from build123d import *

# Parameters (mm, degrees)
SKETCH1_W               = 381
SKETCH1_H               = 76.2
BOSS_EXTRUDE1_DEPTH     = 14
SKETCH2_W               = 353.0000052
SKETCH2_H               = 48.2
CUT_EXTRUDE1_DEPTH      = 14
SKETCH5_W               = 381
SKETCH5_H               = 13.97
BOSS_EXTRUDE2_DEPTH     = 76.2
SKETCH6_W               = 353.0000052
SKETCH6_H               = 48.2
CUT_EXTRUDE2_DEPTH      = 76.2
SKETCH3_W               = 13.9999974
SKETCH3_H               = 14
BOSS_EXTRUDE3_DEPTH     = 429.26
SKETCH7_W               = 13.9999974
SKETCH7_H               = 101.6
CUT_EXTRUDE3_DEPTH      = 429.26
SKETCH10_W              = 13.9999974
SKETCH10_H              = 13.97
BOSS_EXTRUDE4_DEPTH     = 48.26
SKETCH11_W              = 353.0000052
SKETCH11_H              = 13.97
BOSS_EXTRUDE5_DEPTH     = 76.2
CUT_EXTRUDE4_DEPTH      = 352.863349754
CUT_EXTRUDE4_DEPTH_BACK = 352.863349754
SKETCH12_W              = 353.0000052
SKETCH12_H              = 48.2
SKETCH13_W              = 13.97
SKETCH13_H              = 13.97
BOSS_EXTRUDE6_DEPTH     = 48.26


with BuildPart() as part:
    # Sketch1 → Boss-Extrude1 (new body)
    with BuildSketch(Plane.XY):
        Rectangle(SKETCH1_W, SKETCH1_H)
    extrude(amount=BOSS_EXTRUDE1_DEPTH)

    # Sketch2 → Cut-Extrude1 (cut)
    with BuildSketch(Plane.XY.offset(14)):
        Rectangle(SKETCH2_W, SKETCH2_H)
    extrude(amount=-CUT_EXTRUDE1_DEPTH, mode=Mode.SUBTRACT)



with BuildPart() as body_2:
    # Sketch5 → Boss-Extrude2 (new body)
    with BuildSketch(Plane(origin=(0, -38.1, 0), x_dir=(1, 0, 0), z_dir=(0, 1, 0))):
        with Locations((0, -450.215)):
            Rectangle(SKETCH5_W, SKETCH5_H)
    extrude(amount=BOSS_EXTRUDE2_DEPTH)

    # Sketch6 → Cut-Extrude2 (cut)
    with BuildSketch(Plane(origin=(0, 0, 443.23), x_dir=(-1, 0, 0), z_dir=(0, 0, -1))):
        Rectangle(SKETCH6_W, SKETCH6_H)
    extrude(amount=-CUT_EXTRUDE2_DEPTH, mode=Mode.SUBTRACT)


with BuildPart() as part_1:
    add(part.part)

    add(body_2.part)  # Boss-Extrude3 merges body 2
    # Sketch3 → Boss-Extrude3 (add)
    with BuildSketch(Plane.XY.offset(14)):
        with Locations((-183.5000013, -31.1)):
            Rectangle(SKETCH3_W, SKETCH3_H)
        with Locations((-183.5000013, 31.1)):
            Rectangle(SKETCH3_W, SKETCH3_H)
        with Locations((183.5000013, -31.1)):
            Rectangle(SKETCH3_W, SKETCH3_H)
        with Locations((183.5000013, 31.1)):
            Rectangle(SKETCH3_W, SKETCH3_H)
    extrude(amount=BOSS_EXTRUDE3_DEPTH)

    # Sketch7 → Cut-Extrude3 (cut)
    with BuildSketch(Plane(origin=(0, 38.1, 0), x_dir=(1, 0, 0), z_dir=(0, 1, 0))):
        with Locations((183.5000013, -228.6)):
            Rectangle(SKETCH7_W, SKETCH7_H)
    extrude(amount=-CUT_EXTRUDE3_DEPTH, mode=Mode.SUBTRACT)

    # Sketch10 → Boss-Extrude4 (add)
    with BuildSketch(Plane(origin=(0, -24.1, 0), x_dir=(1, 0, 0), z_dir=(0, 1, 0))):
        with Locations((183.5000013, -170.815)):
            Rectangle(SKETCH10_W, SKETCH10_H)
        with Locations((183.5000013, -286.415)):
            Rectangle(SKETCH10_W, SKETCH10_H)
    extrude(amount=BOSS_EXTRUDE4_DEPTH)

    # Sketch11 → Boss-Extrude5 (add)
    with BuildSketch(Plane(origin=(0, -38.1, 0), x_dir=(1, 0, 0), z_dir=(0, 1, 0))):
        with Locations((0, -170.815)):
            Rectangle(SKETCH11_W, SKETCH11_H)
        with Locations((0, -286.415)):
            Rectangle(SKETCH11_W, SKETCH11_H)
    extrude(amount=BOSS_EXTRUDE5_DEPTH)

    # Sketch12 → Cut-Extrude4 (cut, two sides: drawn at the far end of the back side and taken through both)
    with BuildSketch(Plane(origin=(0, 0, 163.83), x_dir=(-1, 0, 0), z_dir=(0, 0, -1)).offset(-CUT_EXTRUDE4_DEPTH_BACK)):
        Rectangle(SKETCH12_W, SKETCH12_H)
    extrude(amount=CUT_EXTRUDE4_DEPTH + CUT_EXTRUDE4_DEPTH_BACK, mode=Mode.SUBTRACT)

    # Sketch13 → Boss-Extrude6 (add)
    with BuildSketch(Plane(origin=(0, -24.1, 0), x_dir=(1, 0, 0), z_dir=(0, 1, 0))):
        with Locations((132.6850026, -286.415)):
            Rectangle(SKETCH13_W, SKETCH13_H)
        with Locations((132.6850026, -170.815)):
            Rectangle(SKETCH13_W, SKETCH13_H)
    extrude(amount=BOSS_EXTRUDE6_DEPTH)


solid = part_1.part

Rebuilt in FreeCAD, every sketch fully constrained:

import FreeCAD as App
import Part
import Sketcher
from FreeCAD import Vector
Q = App.Units.Quantity


def add_polygon(sketch, points):
    """Adds a closed chain of lines whose ends are joined by coincident constraints."""
    first, n = sketch.GeometryCount, len(points)
    for a, b in zip(points, points[1:] + points[:1]):
        sketch.addGeometry(Part.LineSegment(App.Vector(*a, 0), App.Vector(*b, 0)), False)
    for i in range(n):
        sketch.addConstraint(Sketcher.Constraint("Coincident", first + i, 2, first + (i + 1) % n, 1))

doc = App.newDocument("Part")
params = doc.addObject("Spreadsheet::Sheet", "Params")
for row, (alias, value) in enumerate([
    ("sketch1_width", "15 in"),
    ("sketch1_height", "3 in"),
    ("pad1_length", "14 mm"),
    ("pocket1_length", "14 mm"),
    ("sketch3_width", "15 in"),
    ("sketch3_height", "0.55 in"),
    ("pad2_length", "3 in"),
    ("pocket2_length", "3 in"),
    ("pad3_length", "16.9 in"),
    ("sketch6_height", "4 in"),
    ("pocket3_length", "16.9 in"),
    ("sketch7_height", "0.55 in"),
    ("pad4_length", "1.9 in"),
    ("sketch8_height", "0.55 in"),
    ("pad5_length", "3 in"),
    ("sketch10_width", "0.55 in"),
    ("pad6_length", "1.9 in"),
], start=1):
    params.set(f"A{row}", alias)
    params.set(f"B{row}", "=" + value)
    params.setAlias(f"B{row}", alias)

body = doc.addObject("PartDesign::Body", "Body")

# Sketch on XY plane
sketch1 = doc.addObject("Sketcher::SketchObject", "Sketch")
body.addObject(sketch1)
sketch1.AttachmentSupport = (doc.XY_Plane, [""])
sketch1.MapMode = "FlatFace"
add_polygon(sketch1, [(-190, 38), (-190, -38), (190, -38), (190, 38)])  # lines 0-3
sketch1.addConstraint([
    Sketcher.Constraint("Vertical", 0),
    Sketcher.Constraint("Horizontal", 1),
    Sketcher.Constraint("Vertical", 2),
    Sketcher.Constraint("Horizontal", 3),
    Sketcher.Constraint("Symmetric", 0, 2, 2, 2, -1, 1),
    Sketcher.Constraint("DistanceX", 1, 1, 1, 2, Q("15 in")),
    Sketcher.Constraint("DistanceY", 0, 2, 0, 1, Q("3 in")),
])
sketch1.setExpression("Constraints[9]", "Params.sketch1_width")
sketch1.setExpression("Constraints[10]", "Params.sketch1_height")
pad1 = doc.addObject("PartDesign::Pad", "Pad")
body.addObject(pad1)
pad1.Profile = sketch1
pad1.setExpression("Length", "Params.pad1_length")

# Sketch on XY plane
sketch2 = doc.addObject("Sketcher::SketchObject", "Sketch001")
body.addObject(sketch2)
sketch2.AttachmentSupport = (doc.XY_Plane, [""])
sketch2.MapMode = "FlatFace"
sketch2.AttachmentOffset = App.Placement(Vector(0, 0, 14), App.Rotation())
add_polygon(sketch2, [(-177, 24), (-177, -24), (177, -24), (177, 24)])  # lines 0-3
sketch2.addConstraint([
    Sketcher.Constraint("Vertical", 0),
    Sketcher.Constraint("Horizontal", 1),
    Sketcher.Constraint("Vertical", 2),
    Sketcher.Constraint("Horizontal", 3),
    Sketcher.Constraint("Symmetric", 0, 2, 2, 2, -1, 1),
    Sketcher.Constraint("DistanceY", 0, 2, 0, 1, Q("48.2 mm")),
    Sketcher.Constraint("DistanceX", 1, 1, 1, 2, Q("353.000005 mm")),
])
pocket1 = doc.addObject("PartDesign::Pocket", "Pocket")
body.addObject(pocket1)
pocket1.Profile = sketch2
pocket1.setExpression("Length", "Params.pocket1_length")
body2 = doc.addObject("PartDesign::Body", "Body001")

# Sketch on XZ plane
sketch3 = doc.addObject("Sketcher::SketchObject", "Sketch002")
body2.addObject(sketch3)
sketch3.AttachmentSupport = (doc.getObject("XZ_Plane001"), [""])
sketch3.MapMode = "FlatFace"
sketch3.AttachmentOffset = App.Placement(Vector(0, 0, 1.5 * 25.4), App.Rotation())
add_polygon(sketch3, [(-190, 443), (-190, 457), (190, 457), (190, 443)])  # lines 0-3
sketch3.addConstraint([
    Sketcher.Constraint("Vertical", 0),
    Sketcher.Constraint("Horizontal", 1),
    Sketcher.Constraint("Vertical", 2),
    Sketcher.Constraint("Horizontal", 3),
    Sketcher.Constraint("DistanceX", 1, 1, 1, 2, Q("15 in")),
    Sketcher.Constraint("DistanceY", -1, 1, 0, 2, Q("18 in")),
    Sketcher.Constraint("DistanceY", 0, 1, 0, 2, Q("0.55 in")),
    Sketcher.Constraint("DistanceX", 0, 2, -1, 1, Q("7.5 in")),
])
sketch3.setExpression("Constraints[8]", "Params.sketch3_width")
sketch3.setExpression("Constraints[10]", "Params.sketch3_height")
pad2 = doc.addObject("PartDesign::Pad", "Pad001")
body2.addObject(pad2)
pad2.Profile = sketch3
pad2.setExpression("Length", "Params.pad2_length")
pad2.Reversed = True

# Sketch on XY plane
sketch4 = doc.addObject("Sketcher::SketchObject", "Sketch003")
body2.addObject(sketch4)
sketch4.AttachmentSupport = (doc.getObject("XY_Plane001"), [""])
sketch4.MapMode = "FlatFace"
sketch4.AttachmentOffset = App.Placement(Vector(0, 0, 17.45 * 25.4), App.Rotation())
add_polygon(sketch4, [(177, 24), (177, -24), (-177, -24), (-177, 24)])  # lines 0-3
sketch4.addConstraint([
    Sketcher.Constraint("Vertical", 0),
    Sketcher.Constraint("Horizontal", 1),
    Sketcher.Constraint("Vertical", 2),
    Sketcher.Constraint("Horizontal", 3),
    Sketcher.Constraint("Symmetric", 0, 2, 2, 2, -1, 1),
    Sketcher.Constraint("DistanceY", 0, 2, 0, 1, Q("48.2 mm")),
    Sketcher.Constraint("DistanceX", 1, 2, 1, 1, Q("353.000005 mm")),
])
pocket2 = doc.addObject("PartDesign::Pocket", "Pocket001")
body2.addObject(pocket2)
pocket2.Profile = sketch4
pocket2.setExpression("Length", "Params.pocket2_length")
pocket2.Reversed = True
body.AllowCompound = True
doc.recompute()

boolean = doc.addObject("PartDesign::Boolean", "Boolean")
body.addObject(boolean)
boolean.Type = "Fuse"
boolean.addObjects([body2])

# Sketch on XY plane
sketch5 = doc.addObject("Sketcher::SketchObject", "Sketch004")
body.addObject(sketch5)
sketch5.AttachmentSupport = (doc.XY_Plane, [""])
sketch5.MapMode = "FlatFace"
sketch5.AttachmentOffset = App.Placement(Vector(0, 0, 14), App.Rotation())
add_polygon(sketch5, [(-190, -24), (-190, -38), (-177, -38), (-177, -24)])  # lines 0-3
add_polygon(sketch5, [(-190, 38), (-190, 24), (-177, 24), (-177, 38)])  # lines 4-7
add_polygon(sketch5, [(177, -24), (177, -38), (190, -38), (190, -24)])  # lines 8-11
add_polygon(sketch5, [(177, 38), (177, 24), (190, 24), (190, 38)])  # lines 12-15
sketch5.addConstraint([
    Sketcher.Constraint("Vertical", 0),
    Sketcher.Constraint("Horizontal", 1),
    Sketcher.Constraint("Vertical", 2),
    Sketcher.Constraint("Horizontal", 3),
    Sketcher.Constraint("Vertical", 4),
    Sketcher.Constraint("Horizontal", 5),
    Sketcher.Constraint("Vertical", 6),
    Sketcher.Constraint("Horizontal", 7),
    Sketcher.Constraint("Vertical", 8),
    Sketcher.Constraint("Horizontal", 9),
    Sketcher.Constraint("Vertical", 10),
    Sketcher.Constraint("Horizontal", 11),
    Sketcher.Constraint("Vertical", 12),
    Sketcher.Constraint("Horizontal", 13),
    Sketcher.Constraint("Vertical", 14),
    Sketcher.Constraint("Horizontal", 15),
    Sketcher.Constraint("Symmetric", 6, 2, 8, 2, -1, 1),
    Sketcher.Constraint("Symmetric", 4, 2, 10, 2, -1, 1),
    Sketcher.Constraint("Symmetric", 2, 2, 12, 2, -1, 1),
    Sketcher.Constraint("Symmetric", 0, 2, 14, 2, -1, 1),
    Sketcher.Constraint("Symmetric", 1, 2, 8, 2, -2),
    Sketcher.Constraint("Symmetric", 3, 2, 10, 2, -2),
    Sketcher.Constraint("DistanceY", 1, 2, 6, 2, Q("3 in")),
    Sketcher.Constraint("DistanceX", 0, 2, -1, 1, Q("7.5 in")),
    Sketcher.Constraint("DistanceY", 0, 2, 0, 1, Q("14 mm")),
    Sketcher.Constraint("DistanceX", 1, 1, 1, 2, Q("13.999997 mm")),
])
pad3 = doc.addObject("PartDesign::Pad", "Pad002")
body.addObject(pad3)
pad3.Profile = sketch5
pad3.setExpression("Length", "Params.pad3_length")

# Sketch on XZ plane
sketch6 = doc.addObject("Sketcher::SketchObject", "Sketch005")
body.addObject(sketch6)
sketch6.AttachmentSupport = (doc.XZ_Plane, [""])
sketch6.MapMode = "FlatFace"
sketch6.AttachmentOffset = App.Placement(Vector(0, 0, -1.5 * 25.4), App.Rotation())
add_polygon(sketch6, [(177, 178), (177, 279), (190, 279), (190, 178)])  # lines 0-3
sketch6.addConstraint([
    Sketcher.Constraint("Vertical", 0),
    Sketcher.Constraint("Horizontal", 1),
    Sketcher.Constraint("Vertical", 2),
    Sketcher.Constraint("Horizontal", 3),
    Sketcher.Constraint("DistanceY", 0, 1, 0, 2, Q("4 in")),
    Sketcher.Constraint("DistanceY", -1, 1, 0, 2, Q("11 in")),
    Sketcher.Constraint("DistanceX", -1, 1, 1, 2, Q("7.5 in")),
    Sketcher.Constraint("DistanceX", 1, 1, 1, 2, Q("13.999997 mm")),
])
sketch6.setExpression("Constraints[8]", "Params.sketch6_height")
pocket3 = doc.addObject("PartDesign::Pocket", "Pocket002")
body.addObject(pocket3)
pocket3.Profile = sketch6
pocket3.setExpression("Length", "Params.pocket3_length")
pocket3.Reversed = True

# Sketch on XZ plane
sketch7 = doc.addObject("Sketcher::SketchObject", "Sketch006")
body.addObject(sketch7)
sketch7.AttachmentSupport = (doc.XZ_Plane, [""])
sketch7.MapMode = "FlatFace"
sketch7.AttachmentOffset = App.Placement(Vector(0, 0, 24.1), App.Rotation())
add_polygon(sketch7, [(177, 164), (177, 178), (190, 178), (190, 164)])  # lines 0-3
add_polygon(sketch7, [(177, 279), (177, 293), (190, 293), (190, 279)])  # lines 4-7
sketch7.addConstraint([
    Sketcher.Constraint("Vertical", 0),
    Sketcher.Constraint("Horizontal", 1),
    Sketcher.Constraint("Vertical", 2),
    Sketcher.Constraint("Horizontal", 3),
    Sketcher.Constraint("Vertical", 4),
    Sketcher.Constraint("Horizontal", 5),
    Sketcher.Constraint("Vertical", 6),
    Sketcher.Constraint("Horizontal", 7),
    Sketcher.Constraint("Vertical", 3, 2, 4, 2),
    Sketcher.Constraint("Vertical", 2, 2, 5, 2),
    Sketcher.Constraint("Equal", 2, 4),
    Sketcher.Constraint("DistanceY", -1, 1, 0, 2, Q("7 in")),
    Sketcher.Constraint("DistanceY", 0, 1, 0, 2, Q("0.55 in")),
    Sketcher.Constraint("DistanceX", -1, 1, 1, 2, Q("7.5 in")),
    Sketcher.Constraint("DistanceY", -1, 1, 4, 2, Q("293.4 mm")),
    Sketcher.Constraint("DistanceX", 1, 1, 1, 2, Q("13.999997 mm")),
])
sketch7.setExpression("Constraints[20]", "Params.sketch7_height")
pad4 = doc.addObject("PartDesign::Pad", "Pad003")
body.addObject(pad4)
pad4.Profile = sketch7
pad4.setExpression("Length", "Params.pad4_length")
pad4.Reversed = True

# Sketch on XZ plane
sketch8 = doc.addObject("Sketcher::SketchObject", "Sketch007")
body.addObject(sketch8)
sketch8.AttachmentSupport = (doc.XZ_Plane, [""])
sketch8.MapMode = "FlatFace"
sketch8.AttachmentOffset = App.Placement(Vector(0, 0, 1.5 * 25.4), App.Rotation())
add_polygon(sketch8, [(-177, 164), (-177, 178), (177, 178), (177, 164)])  # lines 0-3
add_polygon(sketch8, [(-177, 279), (-177, 293), (177, 293), (177, 279)])  # lines 4-7
sketch8.addConstraint([
    Sketcher.Constraint("Vertical", 0),
    Sketcher.Constraint("Horizontal", 1),
    Sketcher.Constraint("Vertical", 2),
    Sketcher.Constraint("Horizontal", 3),
    Sketcher.Constraint("Vertical", 4),
    Sketcher.Constraint("Horizontal", 5),
    Sketcher.Constraint("Vertical", 6),
    Sketcher.Constraint("Horizontal", 7),
    Sketcher.Constraint("Vertical", 3, 2, 4, 2),
    Sketcher.Constraint("Vertical", 2, 2, 5, 2),
    Sketcher.Constraint("Equal", 2, 4),
    Sketcher.Constraint("DistanceY", -1, 1, 0, 2, Q("7 in")),
    Sketcher.Constraint("DistanceY", 0, 1, 0, 2, Q("0.55 in")),
    Sketcher.Constraint("DistanceY", -1, 1, 4, 2, Q("293.4 mm")),
    Sketcher.Constraint("DistanceX", 1, 1, 1, 2, Q("353.000005 mm")),
    Sketcher.Constraint("DistanceX", 0, 2, -1, 1, Q("176.500003 mm")),
])
sketch8.setExpression("Constraints[20]", "Params.sketch8_height")
pad5 = doc.addObject("PartDesign::Pad", "Pad004")
body.addObject(pad5)
pad5.Profile = sketch8
pad5.setExpression("Length", "Params.pad5_length")
pad5.Reversed = True

# Sketch on XY plane
sketch9 = doc.addObject("Sketcher::SketchObject", "Sketch008")
body.addObject(sketch9)
sketch9.AttachmentSupport = (doc.XY_Plane, [""])
sketch9.MapMode = "FlatFace"
sketch9.AttachmentOffset = App.Placement(Vector(0, 0, 6.45 * 25.4), App.Rotation())
add_polygon(sketch9, [(177, 24), (177, -24), (-177, -24), (-177, 24)])  # lines 0-3
sketch9.addConstraint([
    Sketcher.Constraint("Vertical", 0),
    Sketcher.Constraint("Horizontal", 1),
    Sketcher.Constraint("Vertical", 2),
    Sketcher.Constraint("Horizontal", 3),
    Sketcher.Constraint("Symmetric", 0, 2, 2, 2, -1, 1),
    Sketcher.Constraint("DistanceY", 0, 2, 0, 1, Q("48.2 mm")),
    Sketcher.Constraint("DistanceX", 1, 2, 1, 1, Q("353.000005 mm")),
])
pocket4 = doc.addObject("PartDesign::Pocket", "Pocket003")
body.addObject(pocket4)
pocket4.Profile = sketch9
pocket4.Type = "ThroughAll"
pocket4.Midplane = True

# Sketch on XZ plane
sketch10 = doc.addObject("Sketcher::SketchObject", "Sketch009")
body.addObject(sketch10)
sketch10.AttachmentSupport = (doc.XZ_Plane, [""])
sketch10.MapMode = "FlatFace"
sketch10.AttachmentOffset = App.Placement(Vector(0, 0, 24.1), App.Rotation())
add_polygon(sketch10, [(126, 279), (126, 293), (140, 293), (140, 279)])  # lines 0-3
add_polygon(sketch10, [(126, 164), (126, 178), (140, 178), (140, 164)])  # lines 4-7
sketch10.addConstraint([
    Sketcher.Constraint("Vertical", 0),
    Sketcher.Constraint("Horizontal", 1),
    Sketcher.Constraint("Vertical", 2),
    Sketcher.Constraint("Horizontal", 3),
    Sketcher.Constraint("Vertical", 4),
    Sketcher.Constraint("Horizontal", 5),
    Sketcher.Constraint("Vertical", 6),
    Sketcher.Constraint("Horizontal", 7),
    Sketcher.Constraint("Vertical", 3, 2, 4, 2),
    Sketcher.Constraint("Vertical", 2, 2, 5, 2),
    Sketcher.Constraint("Equal", 7, 0),
    Sketcher.Constraint("Equal", 2, 4),
    Sketcher.Constraint("DistanceY", -1, 1, 4, 2, Q("7 in")),
    Sketcher.Constraint("DistanceX", 1, 1, 1, 2, Q("0.55 in")),
    Sketcher.Constraint("DistanceY", -1, 1, 0, 2, Q("293.4 mm")),
    Sketcher.Constraint("DistanceX", -1, 1, 0, 2, Q("125.700003 mm")),
])
sketch10.setExpression("Constraints[21]", "Params.sketch10_width")
pad6 = doc.addObject("PartDesign::Pad", "Pad005")
body.addObject(pad6)
pad6.Profile = sketch10
pad6.setExpression("Length", "Params.pad6_length")
pad6.Reversed = True

doc.recompute()
